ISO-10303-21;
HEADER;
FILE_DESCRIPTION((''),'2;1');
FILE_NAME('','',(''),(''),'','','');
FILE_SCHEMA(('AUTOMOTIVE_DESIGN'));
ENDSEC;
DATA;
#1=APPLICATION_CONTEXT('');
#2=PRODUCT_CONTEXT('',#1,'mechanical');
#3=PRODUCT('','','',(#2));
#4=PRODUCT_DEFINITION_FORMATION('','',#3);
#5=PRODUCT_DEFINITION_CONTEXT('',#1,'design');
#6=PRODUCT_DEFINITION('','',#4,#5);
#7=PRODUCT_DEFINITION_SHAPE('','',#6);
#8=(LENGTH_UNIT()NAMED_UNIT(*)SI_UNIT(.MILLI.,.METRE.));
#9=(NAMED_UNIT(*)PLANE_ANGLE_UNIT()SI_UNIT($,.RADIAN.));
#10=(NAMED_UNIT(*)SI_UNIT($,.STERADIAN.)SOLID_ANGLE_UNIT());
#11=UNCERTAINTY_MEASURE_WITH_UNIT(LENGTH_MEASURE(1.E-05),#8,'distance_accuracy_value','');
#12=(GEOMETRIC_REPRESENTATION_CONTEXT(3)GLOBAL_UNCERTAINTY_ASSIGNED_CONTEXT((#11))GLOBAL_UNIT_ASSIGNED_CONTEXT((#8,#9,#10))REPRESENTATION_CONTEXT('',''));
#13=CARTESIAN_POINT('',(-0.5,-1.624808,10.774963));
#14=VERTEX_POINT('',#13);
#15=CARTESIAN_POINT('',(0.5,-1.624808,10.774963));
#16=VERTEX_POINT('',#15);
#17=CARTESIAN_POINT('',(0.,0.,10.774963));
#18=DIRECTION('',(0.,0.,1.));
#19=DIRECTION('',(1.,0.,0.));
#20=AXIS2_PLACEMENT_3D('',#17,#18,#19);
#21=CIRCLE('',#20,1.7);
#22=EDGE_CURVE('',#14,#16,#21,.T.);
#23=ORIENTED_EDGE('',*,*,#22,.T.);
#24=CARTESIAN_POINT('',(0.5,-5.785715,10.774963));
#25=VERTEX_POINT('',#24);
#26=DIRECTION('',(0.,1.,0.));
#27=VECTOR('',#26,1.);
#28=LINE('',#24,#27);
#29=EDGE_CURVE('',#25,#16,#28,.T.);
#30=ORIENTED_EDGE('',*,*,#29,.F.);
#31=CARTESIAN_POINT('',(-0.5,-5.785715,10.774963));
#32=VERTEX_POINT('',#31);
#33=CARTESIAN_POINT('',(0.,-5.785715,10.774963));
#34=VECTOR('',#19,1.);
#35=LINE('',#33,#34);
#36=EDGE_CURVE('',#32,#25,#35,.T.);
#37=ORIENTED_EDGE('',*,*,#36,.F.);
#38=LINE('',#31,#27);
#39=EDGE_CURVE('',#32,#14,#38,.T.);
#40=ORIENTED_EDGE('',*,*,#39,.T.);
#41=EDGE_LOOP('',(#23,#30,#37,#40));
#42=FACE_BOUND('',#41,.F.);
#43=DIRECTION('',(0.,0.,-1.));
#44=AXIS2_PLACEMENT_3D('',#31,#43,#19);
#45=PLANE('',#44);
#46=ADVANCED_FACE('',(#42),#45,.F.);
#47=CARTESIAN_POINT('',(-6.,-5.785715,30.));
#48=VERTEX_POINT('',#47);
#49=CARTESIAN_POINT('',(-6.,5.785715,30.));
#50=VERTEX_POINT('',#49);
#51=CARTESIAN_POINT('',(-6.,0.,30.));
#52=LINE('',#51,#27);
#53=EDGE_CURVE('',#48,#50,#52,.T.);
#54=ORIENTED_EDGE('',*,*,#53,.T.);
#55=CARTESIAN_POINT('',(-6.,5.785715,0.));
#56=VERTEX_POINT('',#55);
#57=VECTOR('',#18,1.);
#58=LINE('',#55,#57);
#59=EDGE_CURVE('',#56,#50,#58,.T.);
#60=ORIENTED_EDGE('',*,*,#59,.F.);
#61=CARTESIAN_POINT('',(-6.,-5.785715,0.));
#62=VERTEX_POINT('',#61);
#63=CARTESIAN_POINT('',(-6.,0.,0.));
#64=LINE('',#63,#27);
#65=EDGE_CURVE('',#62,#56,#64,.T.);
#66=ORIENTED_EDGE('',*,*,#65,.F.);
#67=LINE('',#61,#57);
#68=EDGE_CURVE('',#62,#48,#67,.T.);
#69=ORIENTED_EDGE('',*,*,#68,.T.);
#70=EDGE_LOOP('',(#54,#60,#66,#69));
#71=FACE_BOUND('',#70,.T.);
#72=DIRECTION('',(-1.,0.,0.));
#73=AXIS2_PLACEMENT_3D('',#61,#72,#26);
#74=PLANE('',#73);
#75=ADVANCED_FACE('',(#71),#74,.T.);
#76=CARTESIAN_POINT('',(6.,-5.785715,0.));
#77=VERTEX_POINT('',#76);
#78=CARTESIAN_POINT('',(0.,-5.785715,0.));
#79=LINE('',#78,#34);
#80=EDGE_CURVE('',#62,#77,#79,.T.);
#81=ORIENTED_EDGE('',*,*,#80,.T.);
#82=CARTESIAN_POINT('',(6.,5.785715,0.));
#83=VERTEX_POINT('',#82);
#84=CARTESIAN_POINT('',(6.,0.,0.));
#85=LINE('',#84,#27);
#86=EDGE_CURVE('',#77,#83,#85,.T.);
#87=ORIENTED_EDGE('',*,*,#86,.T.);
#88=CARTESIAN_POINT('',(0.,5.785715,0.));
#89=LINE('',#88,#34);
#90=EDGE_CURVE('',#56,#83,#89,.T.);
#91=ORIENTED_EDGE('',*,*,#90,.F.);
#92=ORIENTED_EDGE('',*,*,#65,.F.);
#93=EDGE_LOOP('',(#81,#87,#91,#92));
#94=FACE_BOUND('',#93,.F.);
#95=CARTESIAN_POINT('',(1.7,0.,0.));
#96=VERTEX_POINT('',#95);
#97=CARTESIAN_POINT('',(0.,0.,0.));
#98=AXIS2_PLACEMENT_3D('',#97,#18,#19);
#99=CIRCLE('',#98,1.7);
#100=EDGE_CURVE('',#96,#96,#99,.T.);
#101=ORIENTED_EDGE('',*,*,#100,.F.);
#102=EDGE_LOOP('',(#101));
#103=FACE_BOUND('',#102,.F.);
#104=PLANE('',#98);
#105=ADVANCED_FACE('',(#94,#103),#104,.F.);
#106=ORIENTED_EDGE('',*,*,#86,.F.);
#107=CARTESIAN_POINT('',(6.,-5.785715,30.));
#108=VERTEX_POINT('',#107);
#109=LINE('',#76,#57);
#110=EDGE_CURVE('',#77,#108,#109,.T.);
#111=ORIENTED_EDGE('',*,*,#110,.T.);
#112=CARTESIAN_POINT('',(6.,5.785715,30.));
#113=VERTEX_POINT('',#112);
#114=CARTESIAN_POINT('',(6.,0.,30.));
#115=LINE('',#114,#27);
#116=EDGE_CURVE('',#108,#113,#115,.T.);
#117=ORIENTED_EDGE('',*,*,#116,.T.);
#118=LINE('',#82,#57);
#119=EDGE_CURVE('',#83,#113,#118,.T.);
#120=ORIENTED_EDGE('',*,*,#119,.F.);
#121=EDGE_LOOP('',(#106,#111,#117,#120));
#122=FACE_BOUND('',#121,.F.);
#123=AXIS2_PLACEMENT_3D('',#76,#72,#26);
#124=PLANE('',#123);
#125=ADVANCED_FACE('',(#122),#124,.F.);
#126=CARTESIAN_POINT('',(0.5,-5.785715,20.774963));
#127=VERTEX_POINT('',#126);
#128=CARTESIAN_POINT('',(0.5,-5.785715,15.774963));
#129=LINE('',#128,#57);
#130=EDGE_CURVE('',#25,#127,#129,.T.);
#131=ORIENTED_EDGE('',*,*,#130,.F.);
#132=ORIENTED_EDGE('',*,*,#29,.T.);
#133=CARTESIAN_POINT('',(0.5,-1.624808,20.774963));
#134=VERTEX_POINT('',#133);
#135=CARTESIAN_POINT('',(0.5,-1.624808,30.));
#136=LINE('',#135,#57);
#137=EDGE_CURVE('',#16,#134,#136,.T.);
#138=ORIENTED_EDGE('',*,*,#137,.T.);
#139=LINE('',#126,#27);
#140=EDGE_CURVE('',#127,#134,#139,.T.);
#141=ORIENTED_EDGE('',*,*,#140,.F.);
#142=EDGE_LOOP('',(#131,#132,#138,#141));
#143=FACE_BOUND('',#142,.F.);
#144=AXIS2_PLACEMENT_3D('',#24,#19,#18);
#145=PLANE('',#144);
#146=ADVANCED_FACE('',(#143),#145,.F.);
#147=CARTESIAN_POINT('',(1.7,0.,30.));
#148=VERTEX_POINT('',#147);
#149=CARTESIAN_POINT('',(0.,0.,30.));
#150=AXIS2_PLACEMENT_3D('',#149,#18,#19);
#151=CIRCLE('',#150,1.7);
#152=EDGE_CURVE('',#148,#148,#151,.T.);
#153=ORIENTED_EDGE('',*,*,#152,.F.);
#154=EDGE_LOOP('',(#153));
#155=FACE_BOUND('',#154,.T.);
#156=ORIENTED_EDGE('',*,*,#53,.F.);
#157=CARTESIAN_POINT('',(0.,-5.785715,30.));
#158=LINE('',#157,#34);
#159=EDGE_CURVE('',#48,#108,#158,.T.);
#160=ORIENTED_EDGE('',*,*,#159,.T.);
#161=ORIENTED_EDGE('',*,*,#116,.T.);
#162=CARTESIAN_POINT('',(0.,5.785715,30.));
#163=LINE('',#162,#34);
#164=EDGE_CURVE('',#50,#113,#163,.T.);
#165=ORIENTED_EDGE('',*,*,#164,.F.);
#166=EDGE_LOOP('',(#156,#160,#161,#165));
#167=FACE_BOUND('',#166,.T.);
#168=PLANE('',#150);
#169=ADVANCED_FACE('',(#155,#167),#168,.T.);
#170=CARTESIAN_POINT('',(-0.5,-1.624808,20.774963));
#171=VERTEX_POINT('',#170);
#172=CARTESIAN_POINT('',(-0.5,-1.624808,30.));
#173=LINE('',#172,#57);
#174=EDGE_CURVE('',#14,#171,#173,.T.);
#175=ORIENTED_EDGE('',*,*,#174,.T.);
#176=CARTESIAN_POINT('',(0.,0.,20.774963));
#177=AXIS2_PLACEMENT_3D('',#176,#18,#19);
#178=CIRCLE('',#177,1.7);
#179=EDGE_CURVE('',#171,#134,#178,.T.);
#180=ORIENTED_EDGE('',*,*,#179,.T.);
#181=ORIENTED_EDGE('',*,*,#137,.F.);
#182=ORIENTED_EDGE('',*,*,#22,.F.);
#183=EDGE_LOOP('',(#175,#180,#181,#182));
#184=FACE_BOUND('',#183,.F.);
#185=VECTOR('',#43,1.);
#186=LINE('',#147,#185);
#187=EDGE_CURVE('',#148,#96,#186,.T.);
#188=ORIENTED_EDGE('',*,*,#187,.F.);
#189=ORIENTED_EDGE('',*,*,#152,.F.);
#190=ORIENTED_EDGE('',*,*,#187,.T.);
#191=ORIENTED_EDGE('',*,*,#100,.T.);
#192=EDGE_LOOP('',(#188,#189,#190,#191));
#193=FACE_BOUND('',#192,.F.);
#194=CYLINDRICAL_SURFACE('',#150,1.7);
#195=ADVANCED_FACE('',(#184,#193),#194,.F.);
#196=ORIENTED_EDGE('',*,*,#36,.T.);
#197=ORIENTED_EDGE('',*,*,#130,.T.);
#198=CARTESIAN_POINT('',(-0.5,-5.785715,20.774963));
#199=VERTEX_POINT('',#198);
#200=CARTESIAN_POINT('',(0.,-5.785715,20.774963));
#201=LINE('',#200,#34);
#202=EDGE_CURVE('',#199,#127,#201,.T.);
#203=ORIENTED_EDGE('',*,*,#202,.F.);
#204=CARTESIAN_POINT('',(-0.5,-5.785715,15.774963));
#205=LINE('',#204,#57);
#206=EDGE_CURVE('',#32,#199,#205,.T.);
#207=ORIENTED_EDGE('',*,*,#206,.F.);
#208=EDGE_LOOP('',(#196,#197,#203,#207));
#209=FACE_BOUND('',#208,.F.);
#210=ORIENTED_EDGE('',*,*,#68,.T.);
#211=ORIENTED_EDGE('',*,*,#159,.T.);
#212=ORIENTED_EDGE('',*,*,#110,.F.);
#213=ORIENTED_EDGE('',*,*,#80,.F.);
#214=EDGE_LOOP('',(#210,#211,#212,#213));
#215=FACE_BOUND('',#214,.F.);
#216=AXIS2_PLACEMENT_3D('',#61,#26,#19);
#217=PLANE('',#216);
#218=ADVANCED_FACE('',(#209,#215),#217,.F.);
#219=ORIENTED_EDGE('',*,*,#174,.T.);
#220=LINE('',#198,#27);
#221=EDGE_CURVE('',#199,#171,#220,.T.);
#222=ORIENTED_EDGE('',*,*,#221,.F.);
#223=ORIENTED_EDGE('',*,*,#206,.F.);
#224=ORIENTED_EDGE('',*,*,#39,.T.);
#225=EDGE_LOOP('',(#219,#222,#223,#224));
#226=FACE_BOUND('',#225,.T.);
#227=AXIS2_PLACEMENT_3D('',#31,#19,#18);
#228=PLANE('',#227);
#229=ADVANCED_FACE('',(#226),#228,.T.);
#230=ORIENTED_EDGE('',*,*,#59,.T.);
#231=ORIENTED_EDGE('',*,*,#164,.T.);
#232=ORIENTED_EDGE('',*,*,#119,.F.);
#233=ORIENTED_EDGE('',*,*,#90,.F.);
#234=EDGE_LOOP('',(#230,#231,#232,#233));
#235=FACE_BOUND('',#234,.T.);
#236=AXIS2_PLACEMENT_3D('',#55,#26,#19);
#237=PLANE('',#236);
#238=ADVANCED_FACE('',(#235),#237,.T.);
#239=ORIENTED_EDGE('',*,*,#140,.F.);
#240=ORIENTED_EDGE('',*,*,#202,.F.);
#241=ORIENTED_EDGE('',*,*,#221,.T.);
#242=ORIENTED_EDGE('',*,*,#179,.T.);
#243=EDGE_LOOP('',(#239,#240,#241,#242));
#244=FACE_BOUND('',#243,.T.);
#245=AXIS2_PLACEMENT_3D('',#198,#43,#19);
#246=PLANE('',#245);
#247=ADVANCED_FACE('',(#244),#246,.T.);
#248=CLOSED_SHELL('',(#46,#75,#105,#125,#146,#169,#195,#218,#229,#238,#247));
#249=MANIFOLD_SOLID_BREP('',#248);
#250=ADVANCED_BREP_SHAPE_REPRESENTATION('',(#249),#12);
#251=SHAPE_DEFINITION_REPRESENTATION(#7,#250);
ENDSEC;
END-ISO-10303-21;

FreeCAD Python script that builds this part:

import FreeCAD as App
import Part
import Sketcher

V = App.Vector
Q = App.Units.Quantity


def add_polygon(sketch, points):
    """Adds a closed chain of lines whose ends are joined by coincident constraints."""
    first, n = sketch.GeometryCount, len(points)
    for a, b in zip(points, points[1:] + points[:1]):
        sketch.addGeometry(Part.LineSegment(App.Vector(*a, 0), App.Vector(*b, 0)), False)
    for i in range(n):
        sketch.addConstraint(Sketcher.Constraint("Coincident", first + i, 2, first + (i + 1) % n, 1))

doc = App.newDocument("Part")
body = doc.addObject("PartDesign::Body", "Body")

sketch1 = body.newObject("Sketcher::SketchObject", "Sketch")
sketch1.AttachmentSupport = (doc.getObject("XY_Plane"), [""])
sketch1.MapMode = "FlatFace"
add_polygon(sketch1, [(-6, 6), (-6, -6), (6, -6), (6, 6)])
sketch1.addConstraint([
    Sketcher.Constraint("Vertical", 0),
    Sketcher.Constraint("Horizontal", 1),
    Sketcher.Constraint("Vertical", 2),
    Sketcher.Constraint("Horizontal", 3),
    Sketcher.Constraint("Symmetric", 0, 2, 2, 2, -1, 1),
    Sketcher.Constraint("DistanceX", 1, 1, 1, 2, Q("12 mm")),
    Sketcher.Constraint("DistanceY", 0, 2, 0, 1, Q("11.57143 mm")),
])
pad1 = body.newObject("PartDesign::Pad", "Pad")
pad1.Profile = sketch1
pad1.Length = 30

sketch2 = body.newObject("Sketcher::SketchObject", "Sketch001")
sketch2.AttachmentSupport = (doc.getObject("XY_Plane"), [""])
sketch2.MapMode = "FlatFace"
sketch2.AttachmentOffset = App.Placement(V(0, 0, 30), App.Rotation())
sketch2.addGeometry(Part.Circle(V(0, 0, 0), V(0, 0, 1), 1.7), False)
sketch2.addConstraint([
    Sketcher.Constraint("Coincident", 0, 3, -1, 1),
    Sketcher.Constraint("Diameter", 0, Q("3.4 mm")),
])
pocket1 = body.newObject("PartDesign::Pocket", "Pocket")
pocket1.Profile = sketch2
pocket1.Length = 30

sketch3 = body.newObject("Sketcher::SketchObject", "Sketch002")
sketch3.AttachmentSupport = (doc.getObject("XZ_Plane"), [""])
sketch3.MapMode = "FlatFace"
sketch3.AttachmentOffset = App.Placement(V(0, 0, 5.785715), App.Rotation())
add_polygon(sketch3, [(-0.5, 20.8), (-0.5, 10.8), (0.5, 10.8), (0.5, 20.8)])
sketch3.addConstraint([
    Sketcher.Constraint("Vertical", 0),
    Sketcher.Constraint("Horizontal", 1),
    Sketcher.Constraint("Vertical", 2),
    Sketcher.Constraint("Horizontal", 3),
    Sketcher.Constraint("DistanceX", 1, 1, 1, 2, Q("1 mm")),
    Sketcher.Constraint("DistanceY", 0, 2, 0, 1, Q("10 mm")),
    Sketcher.Constraint("DistanceX", 0, 2, -1, 1, Q("0.5 mm")),
    Sketcher.Constraint("DistanceY", -1, 1, 0, 2, Q("10.774963 mm")),
])
pocket2 = body.newObject("PartDesign::Pocket", "Pocket001")
pocket2.Profile = sketch3
pocket2.Length = 6

doc.recompute()
